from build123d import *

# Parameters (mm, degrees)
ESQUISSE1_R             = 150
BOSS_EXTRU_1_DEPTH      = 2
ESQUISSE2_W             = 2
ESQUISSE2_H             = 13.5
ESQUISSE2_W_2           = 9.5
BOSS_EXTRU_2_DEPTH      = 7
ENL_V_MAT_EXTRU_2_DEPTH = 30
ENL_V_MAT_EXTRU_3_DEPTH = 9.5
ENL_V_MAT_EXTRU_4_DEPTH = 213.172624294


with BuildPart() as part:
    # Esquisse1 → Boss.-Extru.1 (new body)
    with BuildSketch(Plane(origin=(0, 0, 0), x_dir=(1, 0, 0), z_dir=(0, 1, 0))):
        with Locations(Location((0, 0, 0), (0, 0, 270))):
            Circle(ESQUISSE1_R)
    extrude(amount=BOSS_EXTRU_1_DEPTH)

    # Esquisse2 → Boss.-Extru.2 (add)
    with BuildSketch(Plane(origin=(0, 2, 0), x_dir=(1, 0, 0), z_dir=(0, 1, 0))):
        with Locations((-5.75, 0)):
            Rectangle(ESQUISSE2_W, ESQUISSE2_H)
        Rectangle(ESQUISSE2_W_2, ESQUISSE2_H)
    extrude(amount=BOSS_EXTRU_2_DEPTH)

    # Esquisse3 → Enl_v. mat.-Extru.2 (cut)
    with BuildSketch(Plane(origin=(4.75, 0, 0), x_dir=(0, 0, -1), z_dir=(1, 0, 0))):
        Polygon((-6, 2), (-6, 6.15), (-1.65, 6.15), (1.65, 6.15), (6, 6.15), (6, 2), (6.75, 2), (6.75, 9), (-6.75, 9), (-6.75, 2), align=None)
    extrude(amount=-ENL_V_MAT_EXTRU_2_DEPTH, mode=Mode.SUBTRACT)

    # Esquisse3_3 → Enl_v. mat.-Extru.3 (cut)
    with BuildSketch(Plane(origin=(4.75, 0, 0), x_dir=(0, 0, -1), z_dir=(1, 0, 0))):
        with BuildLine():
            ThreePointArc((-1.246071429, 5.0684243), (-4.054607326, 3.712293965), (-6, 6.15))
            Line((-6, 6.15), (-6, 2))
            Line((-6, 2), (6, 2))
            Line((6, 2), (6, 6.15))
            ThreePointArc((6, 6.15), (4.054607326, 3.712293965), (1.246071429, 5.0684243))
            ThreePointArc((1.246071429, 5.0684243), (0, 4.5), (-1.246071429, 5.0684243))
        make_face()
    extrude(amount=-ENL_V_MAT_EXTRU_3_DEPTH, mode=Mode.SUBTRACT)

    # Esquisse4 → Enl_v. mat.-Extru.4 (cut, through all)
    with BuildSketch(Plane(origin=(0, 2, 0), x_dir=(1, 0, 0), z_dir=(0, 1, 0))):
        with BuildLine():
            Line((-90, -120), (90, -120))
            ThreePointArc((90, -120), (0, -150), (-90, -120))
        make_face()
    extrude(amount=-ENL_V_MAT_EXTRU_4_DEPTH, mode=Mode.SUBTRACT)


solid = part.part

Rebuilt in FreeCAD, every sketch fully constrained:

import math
import FreeCAD as App
import Part
import Sketcher
from FreeCAD import Vector

doc = App.newDocument("Part")
body = doc.addObject("PartDesign::Body", "Body")

sketch1 = doc.addObject("Sketcher::SketchObject", "Sketch")
body.addObject(sketch1)
sketch1.AttachmentSupport = (doc.XZ_Plane, [""])
sketch1.MapMode = "FlatFace"
sketch1.addGeometry(Part.Circle(Vector(0, 0, 0), Vector(0, 0, 1), 150), False)
sketch1.addConstraint(Sketcher.Constraint("Coincident", 0, 3, -1, 1))
sketch1.addConstraint(Sketcher.Constraint("Diameter", 0, 300.0))
pad1 = doc.addObject("PartDesign::Pad", "Pad")
body.addObject(pad1)
pad1.Profile = sketch1
pad1.Length = 2
pad1.Reversed = True

sketch2 = doc.addObject("Sketcher::SketchObject", "Sketch001")
body.addObject(sketch2)
sketch2.AttachmentSupport = (doc.XZ_Plane, [""])
sketch2.MapMode = "FlatFace"
sketch2.AttachmentOffset = App.Placement(Vector(0, 0, -2), App.Rotation())
sketch2.addGeometry(Part.LineSegment(Vector(-6.75, -6.75, 0), Vector(-6.75, 6.75, 0)), False)
sketch2.addGeometry(Part.LineSegment(Vector(-6.75, 6.75, 0), Vector(4.75, 6.75, 0)), False)
sketch2.addGeometry(Part.LineSegment(Vector(4.75, 6.75, 0), Vector(4.75, -6.75, 0)), False)
sketch2.addGeometry(Part.LineSegment(Vector(4.75, -6.75, 0), Vector(-6.75, -6.75, 0)), False)
sketch2.addConstraint(Sketcher.Constraint("Coincident", 0, 2, 1, 1))
sketch2.addConstraint(Sketcher.Constraint("Coincident", 1, 2, 2, 1))
sketch2.addConstraint(Sketcher.Constraint("Coincident", 2, 2, 3, 1))
sketch2.addConstraint(Sketcher.Constraint("Coincident", 3, 2, 0, 1))
sketch2.addConstraint(Sketcher.Constraint("Vertical", 0))
sketch2.addConstraint(Sketcher.Constraint("Horizontal", 1))
sketch2.addConstraint(Sketcher.Constraint("Vertical", 2))
sketch2.addConstraint(Sketcher.Constraint("Horizontal", 3))
sketch2.addConstraint(Sketcher.Constraint("DistanceX", 1, 1, 1, 2, 11.5))
sketch2.addConstraint(Sketcher.Constraint("DistanceY", 0, 1, 0, 2, 13.5))
sketch2.addConstraint(Sketcher.Constraint("DistanceX", 0, 2, -1, 1, 6.75))
sketch2.addConstraint(Sketcher.Constraint("DistanceY", -1, 1, 0, 2, 6.75))
pad2 = doc.addObject("PartDesign::Pad", "Pad001")
body.addObject(pad2)
pad2.Profile = sketch2
pad2.Length = 7
pad2.Reversed = True

sketch3 = doc.addObject("Sketcher::SketchObject", "Sketch002")
body.addObject(sketch3)
sketch3.AttachmentSupport = (doc.YZ_Plane, [""])
sketch3.MapMode = "FlatFace"
sketch3.AttachmentOffset = App.Placement(Vector(0, 0, 4.75), App.Rotation())
sketch3.addGeometry(Part.LineSegment(Vector(2, 6, 0), Vector(6.15, 6, 0)), False)
sketch3.addGeometry(Part.LineSegment(Vector(6.15, 6, 0), Vector(6.15, -6, 0)), False)
sketch3.addGeometry(Part.LineSegment(Vector(6.15, -6, 0), Vector(2, -6, 0)), False)
sketch3.addGeometry(Part.LineSegment(Vector(2, -6, 0), Vector(2, -6.75, 0)), False)
sketch3.addGeometry(Part.LineSegment(Vector(2, -6.75, 0), Vector(9, -6.75, 0)), False)
sketch3.addGeometry(Part.LineSegment(Vector(9, -6.75, 0), Vector(9, 6.75, 0)), False)
sketch3.addGeometry(Part.LineSegment(Vector(9, 6.75, 0), Vector(2, 6.75, 0)), False)
sketch3.addGeometry(Part.LineSegment(Vector(2, 6.75, 0), Vector(2, 6, 0)), False)
sketch3.addConstraint(Sketcher.Constraint("Coincident", 0, 2, 1, 1))
sketch3.addConstraint(Sketcher.Constraint("Coincident", 1, 2, 2, 1))
sketch3.addConstraint(Sketcher.Constraint("Coincident", 2, 2, 3, 1))
sketch3.addConstraint(Sketcher.Constraint("Coincident", 3, 2, 4, 1))
sketch3.addConstraint(Sketcher.Constraint("Coincident", 4, 2, 5, 1))
sketch3.addConstraint(Sketcher.Constraint("Coincident", 5, 2, 6, 1))
sketch3.addConstraint(Sketcher.Constraint("Coincident", 6, 2, 7, 1))
sketch3.addConstraint(Sketcher.Constraint("Coincident", 7, 2, 0, 1))
sketch3.addConstraint(Sketcher.Constraint("Horizontal", 0))
sketch3.addConstraint(Sketcher.Constraint("Vertical", 1))
sketch3.addConstraint(Sketcher.Constraint("Horizontal", 2))
sketch3.addConstraint(Sketcher.Constraint("Vertical", 3))
sketch3.addConstraint(Sketcher.Constraint("Horizontal", 4))
sketch3.addConstraint(Sketcher.Constraint("Vertical", 5))
sketch3.addConstraint(Sketcher.Constraint("Horizontal", 6))
sketch3.addConstraint(Sketcher.Constraint("Vertical", 7))
sketch3.addConstraint(Sketcher.Constraint("Symmetric", 3, 2, 6, 2, -1))
sketch3.addConstraint(Sketcher.Constraint("Equal", 3, 7))
sketch3.addConstraint(Sketcher.Constraint("DistanceX", 4, 1, 4, 2, 7.0))
sketch3.addConstraint(Sketcher.Constraint("DistanceY", 1, 2, 1, 1, 12.0))
sketch3.addConstraint(Sketcher.Constraint("DistanceY", 5, 1, 5, 2, 13.5))
sketch3.addConstraint(Sketcher.Constraint("DistanceX", -1, 1, 2, 2, 2.0))
sketch3.addConstraint(Sketcher.Constraint("DistanceX", 0, 1, 0, 2, 4.15))
pocket1 = doc.addObject("PartDesign::Pocket", "Pocket")
body.addObject(pocket1)
pocket1.Profile = sketch3
pocket1.Length = 30

sketch4 = doc.addObject("Sketcher::SketchObject", "Sketch003")
body.addObject(sketch4)
sketch4.AttachmentSupport = (doc.YZ_Plane, [""])
sketch4.MapMode = "FlatFace"
sketch4.AttachmentOffset = App.Placement(Vector(0, 0, 4.75), App.Rotation())
sketch4.addGeometry(Part.ArcOfCircle(Part.Circle(Vector(6.15, 3.5, 0), Vector(0, 0, 1), 2.5), math.radians(90), math.radians(244.365399)), False)
sketch4.addGeometry(Part.LineSegment(Vector(6.15, 6, 0), Vector(2, 6, 0)), False)
sketch4.addGeometry(Part.LineSegment(Vector(2, 6, 0), Vector(2, -6, 0)), False)
sketch4.addGeometry(Part.LineSegment(Vector(2, -6, 0), Vector(6.15, -6, 0)), False)
sketch4.addGeometry(Part.ArcOfCircle(Part.Circle(Vector(6.15, -3.5, 0), Vector(0, 0, 1), 2.5), math.radians(115.634601), math.radians(270)), False)
sketch4.addGeometry(Part.ArcOfCircle(Part.Circle(Vector(6.15, 0, 0), Vector(0, 0, 1), 1.65), math.radians(130.957606), math.radians(229.042394)), False)
sketch4.addConstraint(Sketcher.Constraint("Tangent", 0, 1, 1, 1))
sketch4.addConstraint(Sketcher.Constraint("Coincident", 1, 2, 2, 1))
sketch4.addConstraint(Sketcher.Constraint("Coincident", 2, 2, 3, 1))
sketch4.addConstraint(Sketcher.Constraint("Tangent", 3, 2, 4, 2))
sketch4.addConstraint(Sketcher.Constraint("Coincident", 4, 1, 5, 2))
sketch4.addConstraint(Sketcher.Constraint("Coincident", 5, 1, 0, 2))
sketch4.addConstraint(Sketcher.Constraint("Horizontal", 1))
sketch4.addConstraint(Sketcher.Constraint("Vertical", 2))
sketch4.addConstraint(Sketcher.Constraint("Horizontal", 3))
sketch4.addConstraint(Sketcher.Constraint("Equal", 0, 4))
sketch4.addConstraint(Sketcher.Constraint("Symmetric", 0, 3, 4, 3, -1))
sketch4.addConstraint(Sketcher.Constraint("PointOnObject", 5, 3, -1))
sketch4.addConstraint(Sketcher.Constraint("Vertical", 4, 3, 5, 3))
sketch4.addConstraint(Sketcher.Constraint("Radius", 0, 2.5))
sketch4.addConstraint(Sketcher.Constraint("DistanceY", 2, 2, 2, 1, 12.0))
sketch4.addConstraint(Sketcher.Constraint("Radius", 5, 1.65))
sketch4.addConstraint(Sketcher.Constraint("DistanceX", -1, 1, 1, 2, 2.0))
sketch4.addConstraint(Sketcher.Constraint("DistanceX", 1, 2, 1, 1, 4.15))
pocket2 = doc.addObject("PartDesign::Pocket", "Pocket001")
body.addObject(pocket2)
pocket2.Profile = sketch4
pocket2.Length = 9.5

sketch5 = doc.addObject("Sketcher::SketchObject", "Sketch004")
body.addObject(sketch5)
sketch5.AttachmentSupport = (doc.XZ_Plane, [""])
sketch5.MapMode = "FlatFace"
sketch5.AttachmentOffset = App.Placement(Vector(0, 0, -2), App.Rotation())
sketch5.addGeometry(Part.LineSegment(Vector(90, 120, 0), Vector(-90, 120, 0)), False)
sketch5.addGeometry(Part.ArcOfCircle(Part.Circle(Vector(0, 0, 0), Vector(0, 0, 1), 150), math.radians(53.130102), math.radians(126.869898)), False)
sketch5.addConstraint(Sketcher.Constraint("Coincident", 0, 1, 1, 1))
sketch5.addConstraint(Sketcher.Constraint("Coincident", 1, 2, 0, 2))
sketch5.addConstraint(Sketcher.Constraint("Horizontal", 0))
sketch5.addConstraint(Sketcher.Constraint("Coincident", 1, 3, -1, 1))
sketch5.addConstraint(Sketcher.Constraint("Radius", 1, 150.0))
sketch5.addConstraint(Sketcher.Constraint("DistanceX", 0, 2, 0, 1, 180.0))
pocket3 = doc.addObject("PartDesign::Pocket", "Pocket002")
body.addObject(pocket3)
pocket3.Profile = sketch5
pocket3.Type = "ThroughAll"
pocket3.Reversed = True

doc.recompute()
